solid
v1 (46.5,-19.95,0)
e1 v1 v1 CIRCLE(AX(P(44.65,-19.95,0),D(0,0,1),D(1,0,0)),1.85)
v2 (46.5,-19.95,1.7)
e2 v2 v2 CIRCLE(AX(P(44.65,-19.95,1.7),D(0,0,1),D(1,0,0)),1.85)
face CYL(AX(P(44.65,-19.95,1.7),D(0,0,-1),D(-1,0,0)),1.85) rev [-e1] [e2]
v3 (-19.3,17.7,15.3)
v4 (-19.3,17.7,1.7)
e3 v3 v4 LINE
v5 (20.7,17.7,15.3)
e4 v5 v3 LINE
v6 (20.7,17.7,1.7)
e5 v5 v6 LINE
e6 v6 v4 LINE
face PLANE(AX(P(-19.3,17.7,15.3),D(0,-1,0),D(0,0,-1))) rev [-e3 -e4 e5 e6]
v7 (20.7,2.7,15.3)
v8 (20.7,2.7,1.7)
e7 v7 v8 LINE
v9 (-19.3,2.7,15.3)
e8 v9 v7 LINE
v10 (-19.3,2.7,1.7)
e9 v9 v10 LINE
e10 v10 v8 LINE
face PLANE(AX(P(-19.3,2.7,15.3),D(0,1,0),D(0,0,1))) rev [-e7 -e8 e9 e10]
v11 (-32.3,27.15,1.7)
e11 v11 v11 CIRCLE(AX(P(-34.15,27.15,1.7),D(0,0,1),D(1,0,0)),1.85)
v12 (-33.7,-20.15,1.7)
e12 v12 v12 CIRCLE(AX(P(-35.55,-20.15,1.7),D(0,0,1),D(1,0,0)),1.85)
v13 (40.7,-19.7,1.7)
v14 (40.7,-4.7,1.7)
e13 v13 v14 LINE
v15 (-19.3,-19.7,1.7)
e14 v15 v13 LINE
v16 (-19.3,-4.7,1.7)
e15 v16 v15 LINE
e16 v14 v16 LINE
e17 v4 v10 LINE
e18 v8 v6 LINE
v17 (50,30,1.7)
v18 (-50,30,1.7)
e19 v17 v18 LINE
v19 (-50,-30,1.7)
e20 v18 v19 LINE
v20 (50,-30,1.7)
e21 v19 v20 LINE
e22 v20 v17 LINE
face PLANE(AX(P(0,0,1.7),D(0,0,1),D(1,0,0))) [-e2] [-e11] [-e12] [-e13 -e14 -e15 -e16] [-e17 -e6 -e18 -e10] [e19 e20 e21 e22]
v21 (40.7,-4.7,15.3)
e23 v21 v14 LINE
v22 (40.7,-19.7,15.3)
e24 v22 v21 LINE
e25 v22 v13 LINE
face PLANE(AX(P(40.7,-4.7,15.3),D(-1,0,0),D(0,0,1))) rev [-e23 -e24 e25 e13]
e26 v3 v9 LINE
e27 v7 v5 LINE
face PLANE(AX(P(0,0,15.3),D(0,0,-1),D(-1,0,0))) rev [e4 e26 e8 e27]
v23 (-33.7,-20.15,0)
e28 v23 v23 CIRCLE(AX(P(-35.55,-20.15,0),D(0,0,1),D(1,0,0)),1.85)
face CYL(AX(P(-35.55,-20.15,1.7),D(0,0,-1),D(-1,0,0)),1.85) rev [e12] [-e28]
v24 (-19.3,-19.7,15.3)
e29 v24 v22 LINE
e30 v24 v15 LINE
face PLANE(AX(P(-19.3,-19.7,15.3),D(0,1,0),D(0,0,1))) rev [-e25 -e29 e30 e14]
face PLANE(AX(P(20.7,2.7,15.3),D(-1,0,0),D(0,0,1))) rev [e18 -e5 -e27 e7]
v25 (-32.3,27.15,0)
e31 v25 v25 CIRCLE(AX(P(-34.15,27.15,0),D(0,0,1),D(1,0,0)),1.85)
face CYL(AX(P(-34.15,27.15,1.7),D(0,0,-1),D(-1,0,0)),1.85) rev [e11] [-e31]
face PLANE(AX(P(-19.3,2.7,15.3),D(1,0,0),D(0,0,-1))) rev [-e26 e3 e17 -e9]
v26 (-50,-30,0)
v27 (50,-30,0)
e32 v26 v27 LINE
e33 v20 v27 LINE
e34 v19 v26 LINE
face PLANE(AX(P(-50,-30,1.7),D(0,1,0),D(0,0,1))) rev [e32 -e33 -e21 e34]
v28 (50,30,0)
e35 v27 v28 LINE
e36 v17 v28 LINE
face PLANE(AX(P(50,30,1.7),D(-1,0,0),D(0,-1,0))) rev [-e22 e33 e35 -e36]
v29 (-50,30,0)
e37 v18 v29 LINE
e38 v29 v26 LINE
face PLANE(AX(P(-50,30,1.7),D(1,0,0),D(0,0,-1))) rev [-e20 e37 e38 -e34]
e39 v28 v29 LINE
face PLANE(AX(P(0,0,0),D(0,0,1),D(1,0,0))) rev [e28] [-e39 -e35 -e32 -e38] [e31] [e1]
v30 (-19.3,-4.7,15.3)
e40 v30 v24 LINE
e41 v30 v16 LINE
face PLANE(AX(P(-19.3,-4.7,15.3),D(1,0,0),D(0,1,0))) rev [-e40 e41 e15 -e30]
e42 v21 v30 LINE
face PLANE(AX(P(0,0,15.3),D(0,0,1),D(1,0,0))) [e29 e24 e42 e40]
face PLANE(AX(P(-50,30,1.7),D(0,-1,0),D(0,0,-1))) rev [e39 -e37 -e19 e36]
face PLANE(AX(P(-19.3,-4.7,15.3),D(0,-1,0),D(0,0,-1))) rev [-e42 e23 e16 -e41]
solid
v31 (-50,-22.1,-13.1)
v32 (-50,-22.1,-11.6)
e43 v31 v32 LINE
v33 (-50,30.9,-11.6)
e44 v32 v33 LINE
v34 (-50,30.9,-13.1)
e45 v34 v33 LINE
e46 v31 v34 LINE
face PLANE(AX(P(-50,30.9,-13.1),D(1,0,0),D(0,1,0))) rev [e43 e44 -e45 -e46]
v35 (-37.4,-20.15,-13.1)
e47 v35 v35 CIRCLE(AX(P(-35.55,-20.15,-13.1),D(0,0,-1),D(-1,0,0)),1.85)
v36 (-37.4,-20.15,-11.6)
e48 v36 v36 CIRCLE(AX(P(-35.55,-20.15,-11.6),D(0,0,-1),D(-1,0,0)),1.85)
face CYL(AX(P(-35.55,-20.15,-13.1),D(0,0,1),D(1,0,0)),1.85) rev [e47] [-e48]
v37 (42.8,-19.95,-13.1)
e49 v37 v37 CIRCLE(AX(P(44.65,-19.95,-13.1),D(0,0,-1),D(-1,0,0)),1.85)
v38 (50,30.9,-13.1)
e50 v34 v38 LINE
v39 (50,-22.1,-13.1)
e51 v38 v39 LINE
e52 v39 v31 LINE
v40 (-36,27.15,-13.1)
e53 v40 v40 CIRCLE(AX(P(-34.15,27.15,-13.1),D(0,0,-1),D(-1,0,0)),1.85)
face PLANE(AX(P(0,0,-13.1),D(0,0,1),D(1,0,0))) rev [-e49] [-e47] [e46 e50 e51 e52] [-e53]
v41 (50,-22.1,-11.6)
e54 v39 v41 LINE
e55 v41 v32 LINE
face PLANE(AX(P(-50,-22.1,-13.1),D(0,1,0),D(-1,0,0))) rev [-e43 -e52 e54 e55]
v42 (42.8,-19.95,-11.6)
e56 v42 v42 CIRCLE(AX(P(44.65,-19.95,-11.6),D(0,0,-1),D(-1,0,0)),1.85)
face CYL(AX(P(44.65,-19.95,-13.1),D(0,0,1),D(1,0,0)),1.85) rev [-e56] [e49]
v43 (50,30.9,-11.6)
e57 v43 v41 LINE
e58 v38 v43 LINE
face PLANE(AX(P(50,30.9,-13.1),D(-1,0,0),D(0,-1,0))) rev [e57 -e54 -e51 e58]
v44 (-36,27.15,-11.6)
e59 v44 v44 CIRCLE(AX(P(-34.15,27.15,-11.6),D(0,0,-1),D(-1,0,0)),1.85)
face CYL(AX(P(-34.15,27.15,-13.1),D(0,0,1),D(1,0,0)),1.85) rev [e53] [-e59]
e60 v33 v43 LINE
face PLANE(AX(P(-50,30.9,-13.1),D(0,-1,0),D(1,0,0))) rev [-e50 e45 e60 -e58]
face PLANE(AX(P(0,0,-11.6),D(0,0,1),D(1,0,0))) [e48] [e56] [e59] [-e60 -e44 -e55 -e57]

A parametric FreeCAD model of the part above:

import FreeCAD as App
import Part
import Sketcher
from FreeCAD import Vector
Q = App.Units.Quantity

doc = App.newDocument("Part")
params = doc.addObject("Spreadsheet::Sheet", "Params")
for row, (alias, value) in enumerate([
    ("sketch1_diameter", "3.7 mm"),
    ("sketch1_width", "100 mm"),
    ("sketch1_height", "60 mm"),
    ("pad1_length", "1.7 mm"),
    ("sketch2_width", "60 mm"),
    ("sketch2_width2", "40 mm"),
    ("sketch2_height", "15 mm"),
    ("pad2_length", "13.6 mm"),
    ("sketch3_diameter", "3.7 mm"),
    ("sketch3_width", "100 mm"),
    ("sketch3_height", "53 mm"),
    ("pad3_length", "1.5 mm"),
], start=1):
    params.set(f"A{row}", alias)
    params.set(f"B{row}", "=" + value)
    params.setAlias(f"B{row}", alias)

body = doc.addObject("PartDesign::Body", "Body")

sketch1 = body.newObject("Sketcher::SketchObject", "Sketch")
sketch1.AttachmentSupport = (doc.getObject("XY_Plane"), [""])
sketch1.MapMode = "FlatFace"
sketch1.addGeometry(Part.LineSegment(Vector(-50, 30, 0), Vector(-50, -30, 0)), False)
sketch1.addGeometry(Part.LineSegment(Vector(-50, -30, 0), Vector(50, -30, 0)), False)
sketch1.addGeometry(Part.LineSegment(Vector(50, -30, 0), Vector(50, 30, 0)), False)
sketch1.addGeometry(Part.LineSegment(Vector(50, 30, 0), Vector(-50, 30, 0)), False)
sketch1.addGeometry(Part.Circle(Vector(-35.55, -20.15, 0), Vector(0, 0, 1), 1.85), False)
sketch1.addGeometry(Part.Circle(Vector(44.65, -19.95, 0), Vector(0, 0, 1), 1.85), False)
sketch1.addGeometry(Part.Circle(Vector(-34.15, 27.15, 0), Vector(0, 0, 1), 1.85), False)
sketch1.addConstraint(Sketcher.Constraint("Coincident", 0, 2, 1, 1))
sketch1.addConstraint(Sketcher.Constraint("Coincident", 1, 2, 2, 1))
sketch1.addConstraint(Sketcher.Constraint("Coincident", 2, 2, 3, 1))
sketch1.addConstraint(Sketcher.Constraint("Coincident", 3, 2, 0, 1))
sketch1.addConstraint(Sketcher.Constraint("Vertical", 0))
sketch1.addConstraint(Sketcher.Constraint("Horizontal", 1))
sketch1.addConstraint(Sketcher.Constraint("Vertical", 2))
sketch1.addConstraint(Sketcher.Constraint("Horizontal", 3))
sketch1.addConstraint(Sketcher.Constraint("Equal", 4, 5))
sketch1.addConstraint(Sketcher.Constraint("Equal", 5, 6))
sketch1.addConstraint(Sketcher.Constraint("Symmetric", 0, 2, 2, 2, -1, 1))
sketch1.addConstraint(Sketcher.Constraint("Diameter", 4, Q("3.7 mm")))
sketch1.addConstraint(Sketcher.Constraint("DistanceX", 1, 1, 1, 2, Q("100 mm")))
sketch1.addConstraint(Sketcher.Constraint("DistanceY", 0, 2, 0, 1, Q("60 mm")))
sketch1.addConstraint(Sketcher.Constraint("DistanceX", 4, 3, 5, 3, Q("80.2 mm")))
sketch1.addConstraint(Sketcher.Constraint("DistanceY", 4, 3, 5, 3, Q("0.2 mm")))
sketch1.addConstraint(Sketcher.Constraint("DistanceX", 4, 3, 6, 3, Q("1.4 mm")))
sketch1.addConstraint(Sketcher.Constraint("DistanceY", 4, 3, 6, 3, Q("47.3 mm")))
sketch1.addConstraint(Sketcher.Constraint("DistanceX", 4, 3, -1, 1, Q("35.55 mm")))
sketch1.addConstraint(Sketcher.Constraint("DistanceY", 4, 3, -1, 1, Q("20.15 mm")))
sketch1.setExpression("Constraints[11]", "Params.sketch1_diameter")
sketch1.setExpression("Constraints[12]", "Params.sketch1_width")
sketch1.setExpression("Constraints[13]", "Params.sketch1_height")
pad1 = body.newObject("PartDesign::Pad", "Pad")
pad1.Profile = sketch1
pad1.setExpression("Length", "Params.pad1_length")

sketch2 = body.newObject("Sketcher::SketchObject", "Sketch001")
sketch2.AttachmentSupport = (doc.getObject("XY_Plane"), [""])
sketch2.MapMode = "FlatFace"
sketch2.AttachmentOffset = App.Placement(Vector(0, 0, 1.7), App.Rotation())
sketch2.addGeometry(Part.LineSegment(Vector(-19.3, -4.7, 0), Vector(-19.3, -19.7, 0)), False)
sketch2.addGeometry(Part.LineSegment(Vector(-19.3, -19.7, 0), Vector(40.7, -19.7, 0)), False)
sketch2.addGeometry(Part.LineSegment(Vector(40.7, -19.7, 0), Vector(40.7, -4.7, 0)), False)
sketch2.addGeometry(Part.LineSegment(Vector(40.7, -4.7, 0), Vector(-19.3, -4.7, 0)), False)
sketch2.addGeometry(Part.LineSegment(Vector(-19.3, 17.7, 0), Vector(-19.3, 2.7, 0)), False)
sketch2.addGeometry(Part.LineSegment(Vector(-19.3, 2.7, 0), Vector(20.7, 2.7, 0)), False)
sketch2.addGeometry(Part.LineSegment(Vector(20.7, 2.7, 0), Vector(20.7, 17.7, 0)), False)
sketch2.addGeometry(Part.LineSegment(Vector(20.7, 17.7, 0), Vector(-19.3, 17.7, 0)), False)
sketch2.addConstraint(Sketcher.Constraint("Coincident", 0, 2, 1, 1))
sketch2.addConstraint(Sketcher.Constraint("Coincident", 1, 2, 2, 1))
sketch2.addConstraint(Sketcher.Constraint("Coincident", 2, 2, 3, 1))
sketch2.addConstraint(Sketcher.Constraint("Coincident", 3, 2, 0, 1))
sketch2.addConstraint(Sketcher.Constraint("Coincident", 4, 2, 5, 1))
sketch2.addConstraint(Sketcher.Constraint("Coincident", 5, 2, 6, 1))
sketch2.addConstraint(Sketcher.Constraint("Coincident", 6, 2, 7, 1))
sketch2.addConstraint(Sketcher.Constraint("Coincident", 7, 2, 4, 1))
sketch2.addConstraint(Sketcher.Constraint("Vertical", 0))
sketch2.addConstraint(Sketcher.Constraint("Horizontal", 1))
sketch2.addConstraint(Sketcher.Constraint("Vertical", 2))
sketch2.addConstraint(Sketcher.Constraint("Horizontal", 3))
sketch2.addConstraint(Sketcher.Constraint("Vertical", 4))
sketch2.addConstraint(Sketcher.Constraint("Horizontal", 5))
sketch2.addConstraint(Sketcher.Constraint("Vertical", 6))
sketch2.addConstraint(Sketcher.Constraint("Horizontal", 7))
sketch2.addConstraint(Sketcher.Constraint("Vertical", 3, 2, 4, 2))
sketch2.addConstraint(Sketcher.Constraint("Equal", 2, 4))
sketch2.addConstraint(Sketcher.Constraint("DistanceX", 1, 1, 1, 2, Q("60 mm")))
sketch2.addConstraint(Sketcher.Constraint("DistanceX", 5, 1, 5, 2, Q("40 mm")))
sketch2.addConstraint(Sketcher.Constraint("DistanceY", 0, 2, 0, 1, Q("15 mm")))
sketch2.addConstraint(Sketcher.Constraint("DistanceX", 0, 2, -1, 1, Q("19.3 mm")))
sketch2.addConstraint(Sketcher.Constraint("DistanceY", 0, 2, -1, 1, Q("19.7 mm")))
sketch2.addConstraint(Sketcher.Constraint("DistanceY", -1, 1, 4, 2, Q("2.7 mm")))
sketch2.setExpression("Constraints[18]", "Params.sketch2_width")
sketch2.setExpression("Constraints[19]", "Params.sketch2_width2")
sketch2.setExpression("Constraints[20]", "Params.sketch2_height")
pad2 = body.newObject("PartDesign::Pad", "Pad001")
pad2.Profile = sketch2
pad2.setExpression("Length", "Params.pad2_length")
body2 = doc.addObject("PartDesign::Body", "Body001")

sketch3 = body2.newObject("Sketcher::SketchObject", "Sketch002")
sketch3.AttachmentSupport = (doc.getObject("XY_Plane001"), [""])
sketch3.MapMode = "FlatFace"
sketch3.AttachmentOffset = App.Placement(Vector(0, 0, -11.6), App.Rotation())
sketch3.addGeometry(Part.LineSegment(Vector(50, 30.9, 0), Vector(50, -22.1, 0)), False)
sketch3.addGeometry(Part.LineSegment(Vector(50, -22.1, 0), Vector(-50, -22.1, 0)), False)
sketch3.addGeometry(Part.LineSegment(Vector(-50, -22.1, 0), Vector(-50, 30.9, 0)), False)
sketch3.addGeometry(Part.LineSegment(Vector(-50, 30.9, 0), Vector(50, 30.9, 0)), False)
sketch3.addGeometry(Part.Circle(Vector(44.65, -19.95, 0), Vector(0, 0, 1), 1.85), False)
sketch3.addGeometry(Part.Circle(Vector(-35.55, -20.15, 0), Vector(0, 0, 1), 1.85), False)
sketch3.addGeometry(Part.Circle(Vector(-34.15, 27.15, 0), Vector(0, 0, 1), 1.85), False)
sketch3.addConstraint(Sketcher.Constraint("Coincident", 0, 2, 1, 1))
sketch3.addConstraint(Sketcher.Constraint("Coincident", 1, 2, 2, 1))
sketch3.addConstraint(Sketcher.Constraint("Coincident", 2, 2, 3, 1))
sketch3.addConstraint(Sketcher.Constraint("Coincident", 3, 2, 0, 1))
sketch3.addConstraint(Sketcher.Constraint("Vertical", 0))
sketch3.addConstraint(Sketcher.Constraint("Horizontal", 1))
sketch3.addConstraint(Sketcher.Constraint("Vertical", 2))
sketch3.addConstraint(Sketcher.Constraint("Horizontal", 3))
sketch3.addConstraint(Sketcher.Constraint("Equal", 4, 5))
sketch3.addConstraint(Sketcher.Constraint("Equal", 5, 6))
sketch3.addConstraint(Sketcher.Constraint("Diameter", 4, Q("3.7 mm")))
sketch3.addConstraint(Sketcher.Constraint("DistanceX", 1, 2, 1, 1, Q("100 mm")))
sketch3.addConstraint(Sketcher.Constraint("DistanceY", 0, 2, 0, 1, Q("53 mm")))
sketch3.addConstraint(Sketcher.Constraint("DistanceX", -1, 1, 0, 2, Q("50 mm")))
sketch3.addConstraint(Sketcher.Constraint("DistanceY", 0, 2, -1, 1, Q("22.1 mm")))
sketch3.addConstraint(Sketcher.Constraint("DistanceX", 5, 3, 4, 3, Q("80.2 mm")))
sketch3.addConstraint(Sketcher.Constraint("DistanceY", 5, 3, 4, 3, Q("0.2 mm")))
sketch3.addConstraint(Sketcher.Constraint("DistanceX", 5, 3, 6, 3, Q("1.4 mm")))
sketch3.addConstraint(Sketcher.Constraint("DistanceY", 5, 3, 6, 3, Q("47.3 mm")))
sketch3.addConstraint(Sketcher.Constraint("DistanceX", -1, 1, 4, 3, Q("44.65 mm")))
sketch3.addConstraint(Sketcher.Constraint("DistanceY", 4, 3, -1, 1, Q("19.95 mm")))
sketch3.setExpression("Constraints[10]", "Params.sketch3_diameter")
sketch3.setExpression("Constraints[11]", "Params.sketch3_width")
sketch3.setExpression("Constraints[12]", "Params.sketch3_height")
pad3 = body2.newObject("PartDesign::Pad", "Pad002")
pad3.Profile = sketch3
pad3.setExpression("Length", "Params.pad3_length")
pad3.Reversed = True

doc.recompute()
